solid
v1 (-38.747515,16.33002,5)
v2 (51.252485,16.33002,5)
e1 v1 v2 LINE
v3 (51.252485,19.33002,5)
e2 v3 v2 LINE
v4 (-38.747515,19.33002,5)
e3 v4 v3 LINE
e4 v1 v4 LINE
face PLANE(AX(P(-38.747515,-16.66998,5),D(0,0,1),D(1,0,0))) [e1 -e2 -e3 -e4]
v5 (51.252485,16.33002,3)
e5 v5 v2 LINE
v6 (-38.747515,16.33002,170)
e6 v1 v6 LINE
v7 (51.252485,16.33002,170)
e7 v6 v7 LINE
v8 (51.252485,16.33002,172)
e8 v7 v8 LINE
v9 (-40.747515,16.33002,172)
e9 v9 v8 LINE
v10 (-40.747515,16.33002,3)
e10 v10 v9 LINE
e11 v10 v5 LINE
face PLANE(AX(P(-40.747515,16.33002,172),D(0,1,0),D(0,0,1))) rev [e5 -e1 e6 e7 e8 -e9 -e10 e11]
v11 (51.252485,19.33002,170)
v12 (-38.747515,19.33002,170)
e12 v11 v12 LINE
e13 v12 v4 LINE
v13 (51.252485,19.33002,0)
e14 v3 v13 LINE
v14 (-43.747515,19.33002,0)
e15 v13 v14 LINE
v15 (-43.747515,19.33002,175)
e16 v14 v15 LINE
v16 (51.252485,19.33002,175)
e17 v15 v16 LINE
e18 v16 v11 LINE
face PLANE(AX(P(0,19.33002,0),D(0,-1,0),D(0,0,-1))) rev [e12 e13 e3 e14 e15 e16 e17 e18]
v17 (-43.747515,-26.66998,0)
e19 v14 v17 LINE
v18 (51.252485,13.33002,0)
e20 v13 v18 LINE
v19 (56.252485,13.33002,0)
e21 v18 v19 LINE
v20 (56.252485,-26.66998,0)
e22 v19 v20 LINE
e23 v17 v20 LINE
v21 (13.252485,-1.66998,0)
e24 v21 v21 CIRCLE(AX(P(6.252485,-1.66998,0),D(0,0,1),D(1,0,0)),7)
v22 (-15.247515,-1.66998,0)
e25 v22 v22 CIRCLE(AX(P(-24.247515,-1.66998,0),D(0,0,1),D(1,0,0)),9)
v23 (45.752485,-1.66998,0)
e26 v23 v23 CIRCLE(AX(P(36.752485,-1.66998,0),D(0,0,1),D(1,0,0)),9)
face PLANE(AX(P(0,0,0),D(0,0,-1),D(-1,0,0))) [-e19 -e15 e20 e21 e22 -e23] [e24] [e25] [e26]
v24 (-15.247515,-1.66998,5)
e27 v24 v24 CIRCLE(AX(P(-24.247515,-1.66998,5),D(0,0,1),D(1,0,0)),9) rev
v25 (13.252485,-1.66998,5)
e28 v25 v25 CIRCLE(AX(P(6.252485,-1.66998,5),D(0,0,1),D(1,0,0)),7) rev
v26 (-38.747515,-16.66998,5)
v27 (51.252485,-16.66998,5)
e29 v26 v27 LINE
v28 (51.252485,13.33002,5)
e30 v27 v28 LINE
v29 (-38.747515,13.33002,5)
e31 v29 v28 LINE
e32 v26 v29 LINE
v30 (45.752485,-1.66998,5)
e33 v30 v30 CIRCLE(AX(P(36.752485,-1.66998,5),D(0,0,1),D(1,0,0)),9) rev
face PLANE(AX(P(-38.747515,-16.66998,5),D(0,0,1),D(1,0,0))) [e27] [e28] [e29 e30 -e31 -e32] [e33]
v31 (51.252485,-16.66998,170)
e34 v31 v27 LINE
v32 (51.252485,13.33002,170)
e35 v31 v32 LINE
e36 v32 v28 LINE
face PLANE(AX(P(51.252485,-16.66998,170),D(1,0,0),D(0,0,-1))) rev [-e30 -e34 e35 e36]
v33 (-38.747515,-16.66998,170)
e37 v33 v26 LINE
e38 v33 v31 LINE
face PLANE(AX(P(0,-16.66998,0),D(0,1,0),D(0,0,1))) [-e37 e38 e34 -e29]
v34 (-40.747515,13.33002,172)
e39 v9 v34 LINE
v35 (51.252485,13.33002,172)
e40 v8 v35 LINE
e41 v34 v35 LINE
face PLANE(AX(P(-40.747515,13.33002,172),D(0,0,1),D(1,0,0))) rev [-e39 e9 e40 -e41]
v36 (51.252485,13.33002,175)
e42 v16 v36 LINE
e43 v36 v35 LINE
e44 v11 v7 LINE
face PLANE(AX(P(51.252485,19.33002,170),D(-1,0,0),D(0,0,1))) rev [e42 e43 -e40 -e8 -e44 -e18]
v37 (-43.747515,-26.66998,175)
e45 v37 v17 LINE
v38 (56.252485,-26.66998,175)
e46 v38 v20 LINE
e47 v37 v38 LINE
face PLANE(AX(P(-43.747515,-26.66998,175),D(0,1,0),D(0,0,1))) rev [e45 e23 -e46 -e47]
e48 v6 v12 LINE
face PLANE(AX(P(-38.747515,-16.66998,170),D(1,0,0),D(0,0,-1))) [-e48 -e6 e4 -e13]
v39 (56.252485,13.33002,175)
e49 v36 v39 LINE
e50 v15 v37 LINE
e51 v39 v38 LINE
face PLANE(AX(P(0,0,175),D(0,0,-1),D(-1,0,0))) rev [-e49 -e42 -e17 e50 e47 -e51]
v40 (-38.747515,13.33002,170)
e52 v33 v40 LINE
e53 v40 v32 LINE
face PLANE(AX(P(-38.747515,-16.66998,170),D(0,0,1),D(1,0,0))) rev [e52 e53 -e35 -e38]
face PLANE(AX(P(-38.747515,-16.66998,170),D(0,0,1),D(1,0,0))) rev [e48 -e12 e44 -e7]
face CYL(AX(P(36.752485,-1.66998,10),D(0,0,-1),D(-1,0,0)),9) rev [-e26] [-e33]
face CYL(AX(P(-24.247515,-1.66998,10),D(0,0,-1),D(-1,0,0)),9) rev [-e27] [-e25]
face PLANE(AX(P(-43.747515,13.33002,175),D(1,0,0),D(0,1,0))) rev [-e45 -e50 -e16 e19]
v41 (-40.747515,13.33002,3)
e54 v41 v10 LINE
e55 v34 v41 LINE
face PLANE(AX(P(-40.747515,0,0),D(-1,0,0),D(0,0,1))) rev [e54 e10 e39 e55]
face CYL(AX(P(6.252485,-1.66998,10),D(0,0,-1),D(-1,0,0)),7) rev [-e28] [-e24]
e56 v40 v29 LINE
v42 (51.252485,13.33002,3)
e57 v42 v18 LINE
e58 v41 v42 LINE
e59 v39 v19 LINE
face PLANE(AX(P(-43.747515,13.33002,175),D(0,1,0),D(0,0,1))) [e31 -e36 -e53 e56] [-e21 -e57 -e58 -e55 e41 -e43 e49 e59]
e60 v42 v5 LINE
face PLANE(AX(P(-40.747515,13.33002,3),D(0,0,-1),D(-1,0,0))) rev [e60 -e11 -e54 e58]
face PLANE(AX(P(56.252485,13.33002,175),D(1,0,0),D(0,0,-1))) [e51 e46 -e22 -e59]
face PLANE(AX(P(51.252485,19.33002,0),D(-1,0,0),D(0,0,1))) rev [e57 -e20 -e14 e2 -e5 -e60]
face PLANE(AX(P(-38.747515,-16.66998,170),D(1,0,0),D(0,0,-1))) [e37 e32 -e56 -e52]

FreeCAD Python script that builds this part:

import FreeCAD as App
import Part
import Sketcher

doc = App.newDocument("Part")
body = doc.addObject("PartDesign::Body", "Body")

# Sketch on XY plane
sketch1 = doc.addObject("Sketcher::SketchObject", "Sketch")
body.addObject(sketch1)
sketch1.AttachmentSupport = (doc.XY_Plane, [""])
sketch1.MapMode = "FlatFace"
sketch1.addGeometry(Part.LineSegment(App.Vector(-43.747515, 13.33002, 0), App.Vector(-43.747515, -26.66998, 0)), False)
sketch1.addGeometry(Part.LineSegment(App.Vector(-43.747515, -26.66998, 0), App.Vector(56.252485, -26.66998, 0)), False)
sketch1.addGeometry(Part.LineSegment(App.Vector(56.252485, -26.66998, 0), App.Vector(56.252485, 13.33002, 0)), False)
sketch1.addGeometry(Part.LineSegment(App.Vector(56.252485, 13.33002, 0), App.Vector(-43.747515, 13.33002, 0)), False)
sketch1.addConstraint(Sketcher.Constraint("Coincident", 0, 2, 1, 1))
sketch1.addConstraint(Sketcher.Constraint("Coincident", 1, 2, 2, 1))
sketch1.addConstraint(Sketcher.Constraint("Coincident", 2, 2, 3, 1))
sketch1.addConstraint(Sketcher.Constraint("Coincident", 3, 2, 0, 1))
sketch1.addConstraint(Sketcher.Constraint("Vertical", 0))
sketch1.addConstraint(Sketcher.Constraint("Horizontal", 1))
sketch1.addConstraint(Sketcher.Constraint("Vertical", 2))
sketch1.addConstraint(Sketcher.Constraint("Horizontal", 3))
sketch1.addConstraint(Sketcher.Constraint("DistanceX", 1, 1, 1, 2, 100.0))
sketch1.addConstraint(Sketcher.Constraint("DistanceY", 0, 2, 0, 1, 40.0))
sketch1.addConstraint(Sketcher.Constraint("DistanceY", 0, 2, -1, 1, 26.66998))
sketch1.addConstraint(Sketcher.Constraint("DistanceX", 0, 2, -1, 1, 43.747515))
pad1 = doc.addObject("PartDesign::Pad", "Pad")
body.addObject(pad1)
pad1.Profile = sketch1
pad1.Length = 175

# Sketch on XZ plane
sketch2 = doc.addObject("Sketcher::SketchObject", "Sketch001")
body.addObject(sketch2)
sketch2.AttachmentSupport = (doc.XZ_Plane, [""])
sketch2.MapMode = "FlatFace"
sketch2.AttachmentOffset = App.Placement(App.Vector(0, 0, -13.33002), App.Rotation())
sketch2.addGeometry(Part.LineSegment(App.Vector(-38.747515, 5, 0), App.Vector(-38.747515, 170, 0)), False)
sketch2.addGeometry(Part.LineSegment(App.Vector(-38.747515, 170, 0), App.Vector(51.252485, 170, 0)), False)
sketch2.addGeometry(Part.LineSegment(App.Vector(51.252485, 170, 0), App.Vector(51.252485, 5, 0)), False)
sketch2.addGeometry(Part.LineSegment(App.Vector(51.252485, 5, 0), App.Vector(-38.747515, 5, 0)), False)
sketch2.addConstraint(Sketcher.Constraint("Coincident", 0, 2, 1, 1))
sketch2.addConstraint(Sketcher.Constraint("Coincident", 1, 2, 2, 1))
sketch2.addConstraint(Sketcher.Constraint("Coincident", 2, 2, 3, 1))
sketch2.addConstraint(Sketcher.Constraint("Coincident", 3, 2, 0, 1))
sketch2.addConstraint(Sketcher.Constraint("Vertical", 0))
sketch2.addConstraint(Sketcher.Constraint("Horizontal", 1))
sketch2.addConstraint(Sketcher.Constraint("Vertical", 2))
sketch2.addConstraint(Sketcher.Constraint("Horizontal", 3))
sketch2.addConstraint(Sketcher.Constraint("DistanceX", 1, 1, 1, 2, 90.0))
sketch2.addConstraint(Sketcher.Constraint("DistanceY", 0, 1, 0, 2, 165.0))
sketch2.addConstraint(Sketcher.Constraint("DistanceY", -1, 1, 0, 2, 170.0))
sketch2.addConstraint(Sketcher.Constraint("DistanceX", 0, 2, -1, 1, 38.747515))
pocket1 = doc.addObject("PartDesign::Pocket", "Pocket")
body.addObject(pocket1)
pocket1.Profile = sketch2
pocket1.Length = 30
pocket1.Reversed = True

# Sketch on XY plane
sketch3 = doc.addObject("Sketcher::SketchObject", "Sketch002")
body.addObject(sketch3)
sketch3.AttachmentSupport = (doc.XY_Plane, [""])
sketch3.MapMode = "FlatFace"
sketch3.addGeometry(Part.Circle(App.Vector(6.252485, -1.66998, 0), App.Vector(0, 0, 1), 7), False)
sketch3.addGeometry(Part.Circle(App.Vector(36.752485, -1.66998, 0), App.Vector(0, 0, 1), 9), False)
sketch3.addGeometry(Part.Circle(App.Vector(-24.247515, -1.66998, 0), App.Vector(0, 0, 1), 9), False)
sketch3.addConstraint(Sketcher.Constraint("Equal", 1, 2))
sketch3.addConstraint(Sketcher.Constraint("Horizontal", 0, 3, 1, 3))
sketch3.addConstraint(Sketcher.Constraint("Horizontal", 1, 3, 2, 3))
sketch3.addConstraint(Sketcher.Constraint("Diameter", 0, 14.0))
sketch3.addConstraint(Sketcher.Constraint("Diameter", 1, 18.0))
sketch3.addConstraint(Sketcher.Constraint("DistanceX", 2, 3, 1, 3, 61.0))
sketch3.addConstraint(Sketcher.Constraint("DistanceX", 0, 3, 1, 3, 30.5))
sketch3.addConstraint(Sketcher.Constraint("DistanceY", 0, 3, -1, 1, 1.66998))
sketch3.addConstraint(Sketcher.Constraint("DistanceX", -1, 1, 0, 3, 6.252485))
pocket2 = doc.addObject("PartDesign::Pocket", "Pocket001")
body.addObject(pocket2)
pocket2.Profile = sketch3
pocket2.Length = 10
pocket2.Reversed = True

# Sketch on XZ plane
sketch4 = doc.addObject("Sketcher::SketchObject", "Sketch003")
body.addObject(sketch4)
sketch4.AttachmentSupport = (doc.XZ_Plane, [""])
sketch4.MapMode = "FlatFace"
sketch4.AttachmentOffset = App.Placement(App.Vector(0, 0, -13.33002), App.Rotation())
sketch4.addGeometry(Part.LineSegment(App.Vector(-38.747515, 5, 0), App.Vector(51.252485, 5, 0)), False)
sketch4.addGeometry(Part.LineSegment(App.Vector(51.252485, 5, 0), App.Vector(51.252485, 0, 0)), False)
sketch4.addGeometry(Part.LineSegment(App.Vector(51.252485, 0, 0), App.Vector(-43.747515, 0, 0)), False)
sketch4.addGeometry(Part.LineSegment(App.Vector(-43.747515, 0, 0), App.Vector(-43.747515, 175, 0)), False)
sketch4.addGeometry(Part.LineSegment(App.Vector(-43.747515, 175, 0), App.Vector(51.252485, 175, 0)), False)
sketch4.addGeometry(Part.LineSegment(App.Vector(51.252485, 175, 0), App.Vector(51.252485, 170, 0)), False)
sketch4.addGeometry(Part.LineSegment(App.Vector(51.252485, 170, 0), App.Vector(-38.747515, 170, 0)), False)
sketch4.addGeometry(Part.LineSegment(App.Vector(-38.747515, 170, 0), App.Vector(-38.747515, 5, 0)), False)
sketch4.addConstraint(Sketcher.Constraint("Coincident", 0, 2, 1, 1))
sketch4.addConstraint(Sketcher.Constraint("Coincident", 1, 2, 2, 1))
sketch4.addConstraint(Sketcher.Constraint("Coincident", 2, 2, 3, 1))
sketch4.addConstraint(Sketcher.Constraint("Coincident", 3, 2, 4, 1))
sketch4.addConstraint(Sketcher.Constraint("Coincident", 4, 2, 5, 1))
sketch4.addConstraint(Sketcher.Constraint("Coincident", 5, 2, 6, 1))
sketch4.addConstraint(Sketcher.Constraint("Coincident", 6, 2, 7, 1))
sketch4.addConstraint(Sketcher.Constraint("Coincident", 7, 2, 0, 1))
sketch4.addConstraint(Sketcher.Constraint("Horizontal", 0))
sketch4.addConstraint(Sketcher.Constraint("Vertical", 1))
sketch4.addConstraint(Sketcher.Constraint("Horizontal", 2))
sketch4.addConstraint(Sketcher.Constraint("Vertical", 3))
sketch4.addConstraint(Sketcher.Constraint("Horizontal", 4))
sketch4.addConstraint(Sketcher.Constraint("Vertical", 5))
sketch4.addConstraint(Sketcher.Constraint("Horizontal", 6))
sketch4.addConstraint(Sketcher.Constraint("Vertical", 7))
sketch4.addConstraint(Sketcher.Constraint("PointOnObject", 1, 2, -1))
sketch4.addConstraint(Sketcher.Constraint("Vertical", 1, 2, 4, 2))
sketch4.addConstraint(Sketcher.Constraint("Equal", 1, 5))
sketch4.addConstraint(Sketcher.Constraint("DistanceX", 0, 1, 0, 2, 90.0))
sketch4.addConstraint(Sketcher.Constraint("DistanceX", 2, 2, 2, 1, 95.0))
sketch4.addConstraint(Sketcher.Constraint("DistanceY", 1, 2, 1, 1, 5.0))
sketch4.addConstraint(Sketcher.Constraint("DistanceY", 3, 1, 3, 2, 175.0))
sketch4.addConstraint(Sketcher.Constraint("DistanceX", -1, 1, 0, 2, 51.252485))
pad2 = doc.addObject("PartDesign::Pad", "Pad001")
body.addObject(pad2)
pad2.Profile = sketch4
pad2.Length = 6
pad2.Reversed = True

# Sketch on YZ plane
sketch5 = doc.addObject("Sketcher::SketchObject", "Sketch004")
body.addObject(sketch5)
sketch5.AttachmentSupport = (doc.YZ_Plane, [""])
sketch5.MapMode = "FlatFace"
sketch5.AttachmentOffset = App.Placement(App.Vector(0, 0, 51.252485), App.Rotation())
sketch5.addGeometry(Part.LineSegment(App.Vector(16.33002, 172, 0), App.Vector(13.33002, 172, 0)), False)
sketch5.addGeometry(Part.LineSegment(App.Vector(13.33002, 172, 0), App.Vector(13.33002, 170, 0)), False)
sketch5.addGeometry(Part.LineSegment(App.Vector(13.33002, 170, 0), App.Vector(16.33002, 170, 0)), False)
sketch5.addGeometry(Part.LineSegment(App.Vector(16.33002, 170, 0), App.Vector(16.33002, 172, 0)), False)
sketch5.addConstraint(Sketcher.Constraint("Coincident", 0, 2, 1, 1))
sketch5.addConstraint(Sketcher.Constraint("Coincident", 1, 2, 2, 1))
sketch5.addConstraint(Sketcher.Constraint("Coincident", 2, 2, 3, 1))
sketch5.addConstraint(Sketcher.Constraint("Coincident", 3, 2, 0, 1))
sketch5.addConstraint(Sketcher.Constraint("Horizontal", 0))
sketch5.addConstraint(Sketcher.Constraint("Vertical", 1))
sketch5.addConstraint(Sketcher.Constraint("Horizontal", 2))
sketch5.addConstraint(Sketcher.Constraint("Vertical", 3))
sketch5.addConstraint(Sketcher.Constraint("DistanceX", 0, 2, 0, 1, 3.0))
sketch5.addConstraint(Sketcher.Constraint("DistanceY", 1, 2, 1, 1, 2.0))
sketch5.addConstraint(Sketcher.Constraint("DistanceY", -1, 1, 0, 2, 172.0))
sketch5.addConstraint(Sketcher.Constraint("DistanceX", -1, 1, 0, 2, 13.33002))
pocket3 = doc.addObject("PartDesign::Pocket", "Pocket002")
body.addObject(pocket3)
pocket3.Profile = sketch5
pocket3.Length = 92

# Sketch on YZ plane
sketch6 = doc.addObject("Sketcher::SketchObject", "Sketch005")
body.addObject(sketch6)
sketch6.AttachmentSupport = (doc.YZ_Plane, [""])
sketch6.MapMode = "FlatFace"
sketch6.AttachmentOffset = App.Placement(App.Vector(0, 0, 51.252485), App.Rotation())
sketch6.addGeometry(Part.LineSegment(App.Vector(16.33002, 5, 0), App.Vector(13.33002, 5, 0)), False)
sketch6.addGeometry(Part.LineSegment(App.Vector(13.33002, 5, 0), App.Vector(13.33002, 3, 0)), False)
sketch6.addGeometry(Part.LineSegment(App.Vector(13.33002, 3, 0), App.Vector(16.33002, 3, 0)), False)
sketch6.addGeometry(Part.LineSegment(App.Vector(16.33002, 3, 0), App.Vector(16.33002, 5, 0)), False)
sketch6.addConstraint(Sketcher.Constraint("Coincident", 0, 2, 1, 1))
sketch6.addConstraint(Sketcher.Constraint("Coincident", 1, 2, 2, 1))
sketch6.addConstraint(Sketcher.Constraint("Coincident", 2, 2, 3, 1))
sketch6.addConstraint(Sketcher.Constraint("Coincident", 3, 2, 0, 1))
sketch6.addConstraint(Sketcher.Constraint("Horizontal", 0))
sketch6.addConstraint(Sketcher.Constraint("Vertical", 1))
sketch6.addConstraint(Sketcher.Constraint("Horizontal", 2))
sketch6.addConstraint(Sketcher.Constraint("Vertical", 3))
sketch6.addConstraint(Sketcher.Constraint("DistanceX", 0, 2, 0, 1, 3.0))
sketch6.addConstraint(Sketcher.Constraint("DistanceY", 1, 2, 1, 1, 2.0))
sketch6.addConstraint(Sketcher.Constraint("DistanceY", -1, 1, 0, 2, 5.0))
sketch6.addConstraint(Sketcher.Constraint("DistanceX", -1, 1, 0, 2, 13.33002))
pocket4 = doc.addObject("PartDesign::Pocket", "Pocket003")
body.addObject(pocket4)
pocket4.Profile = sketch6
pocket4.Length = 92

# Sketch on YZ plane
sketch7 = doc.addObject("Sketcher::SketchObject", "Sketch006")
body.addObject(sketch7)
sketch7.AttachmentSupport = (doc.YZ_Plane, [""])
sketch7.MapMode = "FlatFace"
sketch7.AttachmentOffset = App.Placement(App.Vector(0, 0, -38.747515), App.Rotation())
sketch7.addGeometry(Part.LineSegment(App.Vector(16.33002, 170, 0), App.Vector(13.33002, 170, 0)), False)
sketch7.addGeometry(Part.LineSegment(App.Vector(13.33002, 170, 0), App.Vector(13.33002, 5, 0)), False)
sketch7.addGeometry(Part.LineSegment(App.Vector(13.33002, 5, 0), App.Vector(16.33002, 5, 0)), False)
sketch7.addGeometry(Part.LineSegment(App.Vector(16.33002, 5, 0), App.Vector(16.33002, 170, 0)), False)
sketch7.addConstraint(Sketcher.Constraint("Coincident", 0, 2, 1, 1))
sketch7.addConstraint(Sketcher.Constraint("Coincident", 1, 2, 2, 1))
sketch7.addConstraint(Sketcher.Constraint("Coincident", 2, 2, 3, 1))
sketch7.addConstraint(Sketcher.Constraint("Coincident", 3, 2, 0, 1))
sketch7.addConstraint(Sketcher.Constraint("Horizontal", 0))
sketch7.addConstraint(Sketcher.Constraint("Vertical", 1))
sketch7.addConstraint(Sketcher.Constraint("Horizontal", 2))
sketch7.addConstraint(Sketcher.Constraint("Vertical", 3))
sketch7.addConstraint(Sketcher.Constraint("DistanceX", 0, 2, 0, 1, 3.0))
sketch7.addConstraint(Sketcher.Constraint("DistanceY", 1, 2, 1, 1, 165.0))
sketch7.addConstraint(Sketcher.Constraint("DistanceY", -1, 1, 0, 2, 170.0))
sketch7.addConstraint(Sketcher.Constraint("DistanceX", -1, 1, 0, 2, 13.33002))
pocket5 = doc.addObject("PartDesign::Pocket", "Pocket004")
body.addObject(pocket5)
pocket5.Profile = sketch7
pocket5.Length = 2

doc.recompute()
